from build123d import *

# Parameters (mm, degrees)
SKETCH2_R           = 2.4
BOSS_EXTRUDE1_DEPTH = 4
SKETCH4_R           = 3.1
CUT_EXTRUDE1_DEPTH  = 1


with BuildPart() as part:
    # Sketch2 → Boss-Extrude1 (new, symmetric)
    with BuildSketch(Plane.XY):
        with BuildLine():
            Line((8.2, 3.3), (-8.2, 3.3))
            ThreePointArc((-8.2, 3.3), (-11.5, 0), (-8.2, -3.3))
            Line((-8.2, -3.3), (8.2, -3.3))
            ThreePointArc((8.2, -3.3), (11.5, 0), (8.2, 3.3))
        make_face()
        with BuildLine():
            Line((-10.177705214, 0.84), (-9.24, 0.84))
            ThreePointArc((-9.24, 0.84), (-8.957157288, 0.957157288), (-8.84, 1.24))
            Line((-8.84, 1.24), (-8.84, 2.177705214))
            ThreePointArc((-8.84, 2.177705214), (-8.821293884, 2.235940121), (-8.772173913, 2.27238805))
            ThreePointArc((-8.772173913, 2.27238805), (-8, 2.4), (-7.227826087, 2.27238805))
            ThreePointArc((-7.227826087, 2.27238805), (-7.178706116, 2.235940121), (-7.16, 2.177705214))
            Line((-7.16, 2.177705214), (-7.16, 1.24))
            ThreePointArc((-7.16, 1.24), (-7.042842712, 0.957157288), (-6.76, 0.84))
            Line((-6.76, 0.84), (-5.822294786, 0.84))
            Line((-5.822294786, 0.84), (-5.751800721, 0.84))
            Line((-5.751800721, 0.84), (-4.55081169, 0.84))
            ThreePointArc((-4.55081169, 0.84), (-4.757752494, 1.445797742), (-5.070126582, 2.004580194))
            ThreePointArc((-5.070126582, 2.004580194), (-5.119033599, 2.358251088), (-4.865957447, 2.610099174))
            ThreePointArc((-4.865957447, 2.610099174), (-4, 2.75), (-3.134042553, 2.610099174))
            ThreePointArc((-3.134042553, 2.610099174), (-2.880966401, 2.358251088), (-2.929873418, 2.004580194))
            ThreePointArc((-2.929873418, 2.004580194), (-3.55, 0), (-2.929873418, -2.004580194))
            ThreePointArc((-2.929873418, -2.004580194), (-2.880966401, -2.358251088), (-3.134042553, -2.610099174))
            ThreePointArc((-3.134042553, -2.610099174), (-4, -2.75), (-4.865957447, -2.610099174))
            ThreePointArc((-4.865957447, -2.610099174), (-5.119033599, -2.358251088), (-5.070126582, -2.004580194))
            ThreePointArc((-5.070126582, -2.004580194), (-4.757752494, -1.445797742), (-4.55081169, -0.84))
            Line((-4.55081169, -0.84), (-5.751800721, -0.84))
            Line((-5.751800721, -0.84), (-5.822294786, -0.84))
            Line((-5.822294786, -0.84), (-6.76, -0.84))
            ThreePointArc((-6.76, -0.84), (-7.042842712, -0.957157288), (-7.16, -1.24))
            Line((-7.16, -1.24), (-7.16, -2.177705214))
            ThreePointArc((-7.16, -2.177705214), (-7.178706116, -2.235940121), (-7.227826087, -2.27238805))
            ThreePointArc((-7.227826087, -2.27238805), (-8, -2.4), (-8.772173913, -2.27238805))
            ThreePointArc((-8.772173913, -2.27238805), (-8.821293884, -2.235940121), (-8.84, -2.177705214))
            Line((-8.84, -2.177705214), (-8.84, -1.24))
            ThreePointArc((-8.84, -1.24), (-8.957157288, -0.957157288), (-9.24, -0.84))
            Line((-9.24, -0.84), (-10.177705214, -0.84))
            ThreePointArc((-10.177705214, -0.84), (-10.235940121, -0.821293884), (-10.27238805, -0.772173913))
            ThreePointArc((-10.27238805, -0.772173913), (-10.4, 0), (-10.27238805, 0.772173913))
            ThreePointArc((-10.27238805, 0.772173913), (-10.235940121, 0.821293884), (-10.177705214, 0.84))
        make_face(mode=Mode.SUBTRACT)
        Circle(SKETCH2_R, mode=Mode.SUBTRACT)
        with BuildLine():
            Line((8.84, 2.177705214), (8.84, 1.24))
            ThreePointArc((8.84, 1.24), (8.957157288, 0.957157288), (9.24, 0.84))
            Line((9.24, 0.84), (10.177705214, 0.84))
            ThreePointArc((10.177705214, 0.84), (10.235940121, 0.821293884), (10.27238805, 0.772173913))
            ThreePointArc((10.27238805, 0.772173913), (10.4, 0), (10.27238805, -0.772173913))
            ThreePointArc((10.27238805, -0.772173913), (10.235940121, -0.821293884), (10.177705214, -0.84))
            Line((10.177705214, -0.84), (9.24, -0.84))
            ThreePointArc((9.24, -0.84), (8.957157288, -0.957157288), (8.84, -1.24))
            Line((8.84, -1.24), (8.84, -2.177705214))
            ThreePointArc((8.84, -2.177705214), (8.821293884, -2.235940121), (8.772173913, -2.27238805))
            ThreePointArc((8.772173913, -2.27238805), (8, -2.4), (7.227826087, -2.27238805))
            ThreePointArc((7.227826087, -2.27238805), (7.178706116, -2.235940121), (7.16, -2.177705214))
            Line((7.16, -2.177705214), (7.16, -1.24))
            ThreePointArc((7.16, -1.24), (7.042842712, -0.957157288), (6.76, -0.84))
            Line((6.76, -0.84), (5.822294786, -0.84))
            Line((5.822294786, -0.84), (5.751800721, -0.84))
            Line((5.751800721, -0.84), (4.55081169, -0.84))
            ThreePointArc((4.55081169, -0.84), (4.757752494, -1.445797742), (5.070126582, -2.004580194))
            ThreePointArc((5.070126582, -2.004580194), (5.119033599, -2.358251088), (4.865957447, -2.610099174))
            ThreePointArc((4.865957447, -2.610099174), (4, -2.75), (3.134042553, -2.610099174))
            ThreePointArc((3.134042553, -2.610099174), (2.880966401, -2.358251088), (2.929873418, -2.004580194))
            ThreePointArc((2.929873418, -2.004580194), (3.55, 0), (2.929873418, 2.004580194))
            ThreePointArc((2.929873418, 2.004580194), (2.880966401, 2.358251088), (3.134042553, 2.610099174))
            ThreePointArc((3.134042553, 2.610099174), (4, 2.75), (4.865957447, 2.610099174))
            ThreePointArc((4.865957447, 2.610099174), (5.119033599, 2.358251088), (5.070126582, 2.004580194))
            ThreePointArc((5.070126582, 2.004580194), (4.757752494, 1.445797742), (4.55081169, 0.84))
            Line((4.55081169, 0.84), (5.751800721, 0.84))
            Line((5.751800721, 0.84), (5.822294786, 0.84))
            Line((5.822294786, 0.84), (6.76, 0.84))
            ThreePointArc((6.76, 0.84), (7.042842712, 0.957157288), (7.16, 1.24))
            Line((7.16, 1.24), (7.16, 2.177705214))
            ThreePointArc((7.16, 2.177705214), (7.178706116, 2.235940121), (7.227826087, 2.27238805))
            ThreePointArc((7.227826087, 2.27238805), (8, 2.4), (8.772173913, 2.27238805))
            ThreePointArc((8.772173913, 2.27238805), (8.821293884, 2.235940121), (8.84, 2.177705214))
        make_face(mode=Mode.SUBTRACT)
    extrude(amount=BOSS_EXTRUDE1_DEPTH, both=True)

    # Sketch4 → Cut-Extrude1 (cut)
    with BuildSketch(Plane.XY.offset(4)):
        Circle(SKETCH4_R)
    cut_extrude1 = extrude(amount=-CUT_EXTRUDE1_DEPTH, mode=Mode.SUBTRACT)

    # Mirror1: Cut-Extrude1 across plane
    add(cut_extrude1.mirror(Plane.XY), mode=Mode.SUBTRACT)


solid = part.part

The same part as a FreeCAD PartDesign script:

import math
import FreeCAD as App
import Part
import Sketcher

V = App.Vector

doc = App.newDocument("Part")
body = doc.addObject("PartDesign::Body", "Body")

# Sketch on XY plane
sketch1 = doc.addObject("Sketcher::SketchObject", "Sketch")
body.addObject(sketch1)
sketch1.AttachmentSupport = (doc.XY_Plane, [""])
sketch1.MapMode = "FlatFace"
sketch1.addGeometry([
    Part.LineSegment(V(8.2, 3.3, 0), V(-8.2, 3.3, 0)),  # 0
    Part.ArcOfCircle(Part.Circle(V(-8.2, 0, 0), V(0, 0, 1), 3.3), math.radians(90), math.radians(270)),  # 1
    Part.LineSegment(V(-8.2, -3.3, 0), V(8.2, -3.3, 0)),  # 2
    Part.ArcOfCircle(Part.Circle(V(8.2, 0, 0), V(0, 0, 1), 3.3), math.radians(-90), math.radians(90)),  # 3
    Part.ArcOfCircle(Part.Circle(V(-10.18, 0.74, 0), V(0, 0, 1), 0.1), math.radians(90), math.radians(161)),  # 4
    Part.LineSegment(V(-10.18, 0.84, 0), V(-9.24, 0.84, 0)),  # 5
    Part.ArcOfCircle(Part.Circle(V(-9.24, 1.24, 0), V(0, 0, 1), 0.4), math.radians(-90), math.radians(0)),  # 6
    Part.LineSegment(V(-8.84, 1.24, 0), V(-8.84, 2.18, 0)),  # 7
    Part.ArcOfCircle(Part.Circle(V(-8.74, 2.18, 0), V(0, 0, 1), 0.1), math.radians(109), math.radians(180)),  # 8
    Part.ArcOfCircle(Part.Circle(V(-8, 0, 0), V(0, 0, 1), 2.4), math.radians(71), math.radians(109)),  # 9
    Part.ArcOfCircle(Part.Circle(V(-7.26, 2.18, 0), V(0, 0, 1), 0.1), math.radians(0), math.radians(71)),  # 10
    Part.LineSegment(V(-7.16, 2.18, 0), V(-7.16, 1.24, 0)),  # 11
    Part.ArcOfCircle(Part.Circle(V(-6.76, 1.24, 0), V(0, 0, 1), 0.4), math.radians(-180), math.radians(-90)),  # 12
    Part.LineSegment(V(-6.76, 0.84, 0), V(-4.55, 0.84, 0)),  # 13
    Part.ArcOfCircle(Part.Circle(V(-8, 0, 0), V(0, 0, 1), 3.55), math.radians(14), math.radians(34)),  # 14
    Part.ArcOfCircle(Part.Circle(V(-4.74, 2.23, 0), V(0, 0, 1), 0.4), math.radians(108), math.radians(214)),  # 15
    Part.ArcOfCircle(Part.Circle(V(-4, 0, 0), V(0, 0, 1), 2.75), math.radians(72), math.radians(108)),  # 16
    Part.ArcOfCircle(Part.Circle(V(-3.26, 2.23, 0), V(0, 0, 1), 0.4), math.radians(-34), math.radians(72)),  # 17
    Part.ArcOfCircle(Part.Circle(V(0, 0, 0), V(0, 0, 1), 3.55), math.radians(146), math.radians(214)),  # 18
    Part.ArcOfCircle(Part.Circle(V(-3.26, -2.23, 0), V(0, 0, 1), 0.4), math.radians(-72), math.radians(34)),  # 19
    Part.ArcOfCircle(Part.Circle(V(-4, 0, 0), V(0, 0, 1), 2.75), math.radians(-108), math.radians(-72)),  # 20
    Part.ArcOfCircle(Part.Circle(V(-4.74, -2.23, 0), V(0, 0, 1), 0.4), math.radians(146), math.radians(252)),  # 21
    Part.ArcOfCircle(Part.Circle(V(-8, 0, 0), V(0, 0, 1), 3.55), math.radians(-34), math.radians(-14)),  # 22
    Part.LineSegment(V(-4.55, -0.84, 0), V(-6.76, -0.84, 0)),  # 23
    Part.ArcOfCircle(Part.Circle(V(-6.76, -1.24, 0), V(0, 0, 1), 0.4), math.radians(90), math.radians(180)),  # 24
    Part.LineSegment(V(-7.16, -1.24, 0), V(-7.16, -2.18, 0)),  # 25
    Part.ArcOfCircle(Part.Circle(V(-7.26, -2.18, 0), V(0, 0, 1), 0.1), math.radians(-71), math.radians(0)),  # 26
    Part.ArcOfCircle(Part.Circle(V(-8, 0, 0), V(0, 0, 1), 2.4), math.radians(-109), math.radians(-71)),  # 27
    Part.ArcOfCircle(Part.Circle(V(-8.74, -2.18, 0), V(0, 0, 1), 0.1), math.radians(-180), math.radians(-109)),  # 28
    Part.LineSegment(V(-8.84, -2.18, 0), V(-8.84, -1.24, 0)),  # 29
    Part.ArcOfCircle(Part.Circle(V(-9.24, -1.24, 0), V(0, 0, 1), 0.4), math.radians(0), math.radians(90)),  # 30
    Part.LineSegment(V(-9.24, -0.84, 0), V(-10.18, -0.84, 0)),  # 31
    Part.ArcOfCircle(Part.Circle(V(-10.18, -0.74, 0), V(0, 0, 1), 0.1), math.radians(-161), math.radians(-90)),  # 32
    Part.ArcOfCircle(Part.Circle(V(-8, 0, 0), V(0, 0, 1), 2.4), math.radians(161), math.radians(199)),  # 33
    Part.Circle(V(0, 0, 0), V(0, 0, 1), 2.4),  # 34
    Part.ArcOfCircle(Part.Circle(V(8.74, 2.18, 0), V(0, 0, 1), 0.1), math.radians(0), math.radians(71)),  # 35
    Part.LineSegment(V(8.84, 2.18, 0), V(8.84, 1.24, 0)),  # 36
    Part.ArcOfCircle(Part.Circle(V(9.24, 1.24, 0), V(0, 0, 1), 0.4), math.radians(-180), math.radians(-90)),  # 37
    Part.LineSegment(V(9.24, 0.84, 0), V(10.18, 0.84, 0)),  # 38
    Part.ArcOfCircle(Part.Circle(V(10.18, 0.74, 0), V(0, 0, 1), 0.1), math.radians(19), math.radians(90)),  # 39
    Part.ArcOfCircle(Part.Circle(V(8, 0, 0), V(0, 0, 1), 2.4), math.radians(-19), math.radians(19)),  # 40
    Part.ArcOfCircle(Part.Circle(V(10.18, -0.74, 0), V(0, 0, 1), 0.1), math.radians(-90), math.radians(-19)),  # 41
    Part.LineSegment(V(10.18, -0.84, 0), V(9.24, -0.84, 0)),  # 42
    Part.ArcOfCircle(Part.Circle(V(9.24, -1.24, 0), V(0, 0, 1), 0.4), math.radians(90), math.radians(180)),  # 43
    Part.LineSegment(V(8.84, -1.24, 0), V(8.84, -2.18, 0)),  # 44
    Part.ArcOfCircle(Part.Circle(V(8.74, -2.18, 0), V(0, 0, 1), 0.1), math.radians(-71), math.radians(0)),  # 45
    Part.ArcOfCircle(Part.Circle(V(8, 0, 0), V(0, 0, 1), 2.4), math.radians(-109), math.radians(-71)),  # 46
    Part.ArcOfCircle(Part.Circle(V(7.26, -2.18, 0), V(0, 0, 1), 0.1), math.radians(-180), math.radians(-109)),  # 47
    Part.LineSegment(V(7.16, -2.18, 0), V(7.16, -1.24, 0)),  # 48
    Part.ArcOfCircle(Part.Circle(V(6.76, -1.24, 0), V(0, 0, 1), 0.4), math.radians(0), math.radians(90)),  # 49
    Part.LineSegment(V(6.76, -0.84, 0), V(4.55, -0.84, 0)),  # 50
    Part.ArcOfCircle(Part.Circle(V(8, 0, 0), V(0, 0, 1), 3.55), math.radians(-166), math.radians(-146)),  # 51
    Part.ArcOfCircle(Part.Circle(V(4.74, -2.23, 0), V(0, 0, 1), 0.4), math.radians(-72), math.radians(34)),  # 52
    Part.ArcOfCircle(Part.Circle(V(4, 0, 0), V(0, 0, 1), 2.75), math.radians(-108), math.radians(-72)),  # 53
    Part.ArcOfCircle(Part.Circle(V(3.26, -2.23, 0), V(0, 0, 1), 0.4), math.radians(146), math.radians(252)),  # 54
    Part.ArcOfCircle(Part.Circle(V(0, 0, 0), V(0, 0, 1), 3.55), math.radians(-34), math.radians(34)),  # 55
    Part.ArcOfCircle(Part.Circle(V(3.26, 2.23, 0), V(0, 0, 1), 0.4), math.radians(108), math.radians(214)),  # 56
    Part.ArcOfCircle(Part.Circle(V(4, 0, 0), V(0, 0, 1), 2.75), math.radians(72), math.radians(108)),  # 57
    Part.ArcOfCircle(Part.Circle(V(4.74, 2.23, 0), V(0, 0, 1), 0.4), math.radians(-34), math.radians(72)),  # 58
    Part.ArcOfCircle(Part.Circle(V(8, 0, 0), V(0, 0, 1), 3.55), math.radians(146), math.radians(166)),  # 59
    Part.LineSegment(V(4.55, 0.84, 0), V(6.76, 0.84, 0)),  # 60
    Part.ArcOfCircle(Part.Circle(V(6.76, 1.24, 0), V(0, 0, 1), 0.4), math.radians(-90), math.radians(0)),  # 61
    Part.LineSegment(V(7.16, 1.24, 0), V(7.16, 2.18, 0)),  # 62
    Part.ArcOfCircle(Part.Circle(V(7.26, 2.18, 0), V(0, 0, 1), 0.1), math.radians(109), math.radians(180)),  # 63
    Part.ArcOfCircle(Part.Circle(V(8, 0, 0), V(0, 0, 1), 2.4), math.radians(71), math.radians(109)),  # 64
], False)
sketch1.addConstraint([
    Sketcher.Constraint("Tangent", 0, 2, 1, 1),
    Sketcher.Constraint("Tangent", 1, 2, 2, 1),
    Sketcher.Constraint("Tangent", 2, 2, 3, 1),
    Sketcher.Constraint("Tangent", 3, 2, 0, 1),
    Sketcher.Constraint("Tangent", 4, 1, 5, 1),
    Sketcher.Constraint("Tangent", 5, 2, 6, 1),
    Sketcher.Constraint("Tangent", 6, 2, 7, 1),
    Sketcher.Constraint("Tangent", 7, 2, 8, 2),
    Sketcher.Constraint("Tangent", 8, 1, 9, 2),
    Sketcher.Constraint("Tangent", 9, 1, 10, 2),
    Sketcher.Constraint("Tangent", 10, 1, 11, 1),
    Sketcher.Constraint("Tangent", 11, 2, 12, 1),
    Sketcher.Constraint("Tangent", 12, 2, 13, 1),
    Sketcher.Constraint("Coincident", 13, 2, 14, 1),
    Sketcher.Constraint("Tangent", 14, 2, 15, 2),
    Sketcher.Constraint("Tangent", 15, 1, 16, 2),
    Sketcher.Constraint("Tangent", 16, 1, 17, 2),
    Sketcher.Constraint("Tangent", 17, 1, 18, 1),
    Sketcher.Constraint("Tangent", 18, 2, 19, 2),
    Sketcher.Constraint("Tangent", 19, 1, 20, 2),
    Sketcher.Constraint("Tangent", 20, 1, 21, 2),
    Sketcher.Constraint("Tangent", 21, 1, 22, 1),
    Sketcher.Constraint("Coincident", 22, 2, 23, 1),
    Sketcher.Constraint("Tangent", 23, 2, 24, 1),
    Sketcher.Constraint("Tangent", 24, 2, 25, 1),
    Sketcher.Constraint("Tangent", 25, 2, 26, 2),
    Sketcher.Constraint("Tangent", 26, 1, 27, 2),
    Sketcher.Constraint("Tangent", 27, 1, 28, 2),
    Sketcher.Constraint("Tangent", 28, 1, 29, 1),
    Sketcher.Constraint("Tangent", 29, 2, 30, 1),
    Sketcher.Constraint("Tangent", 30, 2, 31, 1),
    Sketcher.Constraint("Tangent", 31, 2, 32, 2),
    Sketcher.Constraint("Tangent", 32, 1, 33, 2),
    Sketcher.Constraint("Tangent", 33, 1, 4, 2),
    Sketcher.Constraint("Tangent", 35, 1, 36, 1),
    Sketcher.Constraint("Tangent", 36, 2, 37, 1),
    Sketcher.Constraint("Tangent", 37, 2, 38, 1),
    Sketcher.Constraint("Tangent", 38, 2, 39, 2),
    Sketcher.Constraint("Tangent", 39, 1, 40, 2),
    Sketcher.Constraint("Tangent", 40, 1, 41, 2),
    Sketcher.Constraint("Tangent", 41, 1, 42, 1),
    Sketcher.Constraint("Tangent", 42, 2, 43, 1),
    Sketcher.Constraint("Tangent", 43, 2, 44, 1),
    Sketcher.Constraint("Tangent", 44, 2, 45, 2),
    Sketcher.Constraint("Tangent", 45, 1, 46, 2),
    Sketcher.Constraint("Tangent", 46, 1, 47, 2),
    Sketcher.Constraint("Tangent", 47, 1, 48, 1),
    Sketcher.Constraint("Tangent", 48, 2, 49, 1),
    Sketcher.Constraint("Tangent", 49, 2, 50, 1),
    Sketcher.Constraint("Coincident", 50, 2, 51, 1),
    Sketcher.Constraint("Tangent", 51, 2, 52, 2),
    Sketcher.Constraint("Tangent", 52, 1, 53, 2),
    Sketcher.Constraint("Tangent", 53, 1, 54, 2),
    Sketcher.Constraint("Tangent", 54, 1, 55, 1),
    Sketcher.Constraint("Tangent", 55, 2, 56, 2),
    Sketcher.Constraint("Tangent", 56, 1, 57, 2),
    Sketcher.Constraint("Tangent", 57, 1, 58, 2),
    Sketcher.Constraint("Tangent", 58, 1, 59, 1),
    Sketcher.Constraint("Coincident", 59, 2, 60, 1),
    Sketcher.Constraint("Tangent", 60, 2, 61, 1),
    Sketcher.Constraint("Tangent", 61, 2, 62, 1),
    Sketcher.Constraint("Tangent", 62, 2, 63, 2),
    Sketcher.Constraint("Tangent", 63, 1, 64, 2),
    Sketcher.Constraint("Tangent", 64, 1, 35, 2),
    Sketcher.Constraint("Horizontal", 0),
    Sketcher.Constraint("Horizontal", 2),
    Sketcher.Constraint("Horizontal", 5),
    Sketcher.Constraint("Vertical", 7),
    Sketcher.Constraint("Vertical", 11),
    Sketcher.Constraint("Horizontal", 13),
    Sketcher.Constraint("Horizontal", 23),
    Sketcher.Constraint("Vertical", 25),
    Sketcher.Constraint("Vertical", 29),
    Sketcher.Constraint("Horizontal", 31),
    Sketcher.Constraint("Vertical", 36),
    Sketcher.Constraint("Horizontal", 38),
    Sketcher.Constraint("Horizontal", 42),
    Sketcher.Constraint("Vertical", 44),
    Sketcher.Constraint("Vertical", 48),
    Sketcher.Constraint("Horizontal", 50),
    Sketcher.Constraint("Horizontal", 60),
    Sketcher.Constraint("Vertical", 62),
    Sketcher.Constraint("Coincident", 18, 3, -1, 1),
    Sketcher.Constraint("Coincident", 34, 3, -1, 1),
    Sketcher.Constraint("Coincident", 55, 3, -1, 1),
    Sketcher.Constraint("Coincident", 14, 3, 9, 3),
    Sketcher.Constraint("Coincident", 20, 3, 16, 3),
    Sketcher.Constraint("Coincident", 22, 3, 9, 3),
    Sketcher.Constraint("Coincident", 27, 3, 9, 3),
    Sketcher.Constraint("Coincident", 33, 3, 9, 3),
    Sketcher.Constraint("Coincident", 46, 3, 40, 3),
    Sketcher.Constraint("Coincident", 51, 3, 40, 3),
    Sketcher.Constraint("Coincident", 57, 3, 53, 3),
    Sketcher.Constraint("Coincident", 59, 3, 40, 3),
    Sketcher.Constraint("Coincident", 64, 3, 40, 3),
    Sketcher.Constraint("Equal", 4, 8),
    Sketcher.Constraint("Equal", 8, 10),
    Sketcher.Constraint("Equal", 6, 12),
    Sketcher.Constraint("Equal", 12, 15),
    Sketcher.Constraint("Equal", 15, 17),
    Sketcher.Constraint("Equal", 14, 18),
    Sketcher.Constraint("Equal", 17, 19),
    Sketcher.Constraint("Equal", 16, 20),
    Sketcher.Constraint("Equal", 19, 21),
    Sketcher.Constraint("Equal", 18, 22),
    Sketcher.Constraint("Equal", 21, 24),
    Sketcher.Constraint("Equal", 10, 26),
    Sketcher.Constraint("Equal", 9, 27),
    Sketcher.Constraint("Equal", 26, 28),
    Sketcher.Constraint("Equal", 24, 30),
    Sketcher.Constraint("Equal", 28, 32),
    Sketcher.Constraint("Equal", 27, 33),
    Sketcher.Constraint("Equal", 33, 34),
    Sketcher.Constraint("Equal", 32, 35),
    Sketcher.Constraint("Equal", 30, 37),
    Sketcher.Constraint("Equal", 35, 39),
    Sketcher.Constraint("Equal", 34, 40),
    Sketcher.Constraint("Equal", 39, 41),
    Sketcher.Constraint("Equal", 37, 43),
    Sketcher.Constraint("Equal", 41, 45),
    Sketcher.Constraint("Equal", 40, 46),
    Sketcher.Constraint("Equal", 45, 47),
    Sketcher.Constraint("Equal", 43, 49),
    Sketcher.Constraint("Equal", 22, 51),
    Sketcher.Constraint("Equal", 49, 52),
    Sketcher.Constraint("Equal", 20, 53),
    Sketcher.Constraint("Equal", 52, 54),
    Sketcher.Constraint("Equal", 51, 55),
    Sketcher.Constraint("Equal", 54, 56),
    Sketcher.Constraint("Equal", 53, 57),
    Sketcher.Constraint("Equal", 56, 58),
    Sketcher.Constraint("Equal", 55, 59),
    Sketcher.Constraint("Equal", 58, 61),
    Sketcher.Constraint("Equal", 47, 63),
    Sketcher.Constraint("Equal", 46, 64),
    Sketcher.Constraint("Symmetric", 1, 3, 3, 3, -1, 1),
    Sketcher.Constraint("Symmetric", 28, 3, 35, 3, -1, 1),
    Sketcher.Constraint("Symmetric", 32, 3, 39, 3, -1, 1),
    Sketcher.Constraint("Symmetric", 6, 3, 43, 3, -1, 1),
    Sketcher.Constraint("Symmetric", 12, 3, 49, 3, -1, 1),
    Sketcher.Constraint("Symmetric", 16, 3, 53, 3, -1, 1),
    Sketcher.Constraint("Symmetric", 24, 3, 61, 3, -1, 1),
    Sketcher.Constraint("Symmetric", 8, 3, 35, 3, -2),
    Sketcher.Constraint("Symmetric", 24, 3, 49, 3, -2),
    Sketcher.Constraint("PointOnObject", 16, 3, -1),
    Sketcher.Constraint("Horizontal", 8, 3, 10, 3),
    Sketcher.Constraint("Horizontal", 6, 3, 12, 3),
    Sketcher.Constraint("Horizontal", 15, 3, 17, 3),
    Sketcher.Constraint("Horizontal", 24, 3, 30, 3),
    Sketcher.Constraint("Equal", 42, 7),
    Sketcher.Constraint("Diameter", 34, 4.8),
    Sketcher.Constraint("Radius", 1, 3.3),
    Sketcher.Constraint("Radius", 4, 0.1),
    Sketcher.Constraint("Radius", 6, 0.4),
    Sketcher.Constraint("Radius", 14, 3.55),
    Sketcher.Constraint("Radius", 16, 2.75),
    Sketcher.Constraint("DistanceX", 0, 2, 0, 1, 16.4),
    Sketcher.Constraint("DistanceX", 9, 3, -1, 1, 8.0),
    Sketcher.Constraint("DistanceY", -1, 1, 4, 3, 0.74),
])
pad1 = doc.addObject("PartDesign::Pad", "Pad")
body.addObject(pad1)
pad1.Profile = sketch1
pad1.Length = 8
pad1.Midplane = True

# Sketch on XY plane
sketch2 = doc.addObject("Sketcher::SketchObject", "Sketch001")
body.addObject(sketch2)
sketch2.AttachmentSupport = (doc.XY_Plane, [""])
sketch2.MapMode = "FlatFace"
sketch2.AttachmentOffset = App.Placement(V(0, 0, 4), App.Rotation())
sketch2.addGeometry(Part.Circle(V(0, 0, 0), V(0, 0, 1), 3.1), False)
sketch2.addConstraint([
    Sketcher.Constraint("Coincident", 0, 3, -1, 1),
    Sketcher.Constraint("Diameter", 0, 6.2),
])
pocket1 = doc.addObject("PartDesign::Pocket", "Pocket")
body.addObject(pocket1)
pocket1.Profile = sketch2
pocket1.Length = 1
doc.recompute()

mirrored = doc.addObject("PartDesign::Mirrored", "Mirrored")
body.addObject(mirrored)
mirrored.Originals = [pocket1]
mirrored.MirrorPlane = (doc.XY_Plane, [""])
body.Tip = mirrored

doc.recompute()
